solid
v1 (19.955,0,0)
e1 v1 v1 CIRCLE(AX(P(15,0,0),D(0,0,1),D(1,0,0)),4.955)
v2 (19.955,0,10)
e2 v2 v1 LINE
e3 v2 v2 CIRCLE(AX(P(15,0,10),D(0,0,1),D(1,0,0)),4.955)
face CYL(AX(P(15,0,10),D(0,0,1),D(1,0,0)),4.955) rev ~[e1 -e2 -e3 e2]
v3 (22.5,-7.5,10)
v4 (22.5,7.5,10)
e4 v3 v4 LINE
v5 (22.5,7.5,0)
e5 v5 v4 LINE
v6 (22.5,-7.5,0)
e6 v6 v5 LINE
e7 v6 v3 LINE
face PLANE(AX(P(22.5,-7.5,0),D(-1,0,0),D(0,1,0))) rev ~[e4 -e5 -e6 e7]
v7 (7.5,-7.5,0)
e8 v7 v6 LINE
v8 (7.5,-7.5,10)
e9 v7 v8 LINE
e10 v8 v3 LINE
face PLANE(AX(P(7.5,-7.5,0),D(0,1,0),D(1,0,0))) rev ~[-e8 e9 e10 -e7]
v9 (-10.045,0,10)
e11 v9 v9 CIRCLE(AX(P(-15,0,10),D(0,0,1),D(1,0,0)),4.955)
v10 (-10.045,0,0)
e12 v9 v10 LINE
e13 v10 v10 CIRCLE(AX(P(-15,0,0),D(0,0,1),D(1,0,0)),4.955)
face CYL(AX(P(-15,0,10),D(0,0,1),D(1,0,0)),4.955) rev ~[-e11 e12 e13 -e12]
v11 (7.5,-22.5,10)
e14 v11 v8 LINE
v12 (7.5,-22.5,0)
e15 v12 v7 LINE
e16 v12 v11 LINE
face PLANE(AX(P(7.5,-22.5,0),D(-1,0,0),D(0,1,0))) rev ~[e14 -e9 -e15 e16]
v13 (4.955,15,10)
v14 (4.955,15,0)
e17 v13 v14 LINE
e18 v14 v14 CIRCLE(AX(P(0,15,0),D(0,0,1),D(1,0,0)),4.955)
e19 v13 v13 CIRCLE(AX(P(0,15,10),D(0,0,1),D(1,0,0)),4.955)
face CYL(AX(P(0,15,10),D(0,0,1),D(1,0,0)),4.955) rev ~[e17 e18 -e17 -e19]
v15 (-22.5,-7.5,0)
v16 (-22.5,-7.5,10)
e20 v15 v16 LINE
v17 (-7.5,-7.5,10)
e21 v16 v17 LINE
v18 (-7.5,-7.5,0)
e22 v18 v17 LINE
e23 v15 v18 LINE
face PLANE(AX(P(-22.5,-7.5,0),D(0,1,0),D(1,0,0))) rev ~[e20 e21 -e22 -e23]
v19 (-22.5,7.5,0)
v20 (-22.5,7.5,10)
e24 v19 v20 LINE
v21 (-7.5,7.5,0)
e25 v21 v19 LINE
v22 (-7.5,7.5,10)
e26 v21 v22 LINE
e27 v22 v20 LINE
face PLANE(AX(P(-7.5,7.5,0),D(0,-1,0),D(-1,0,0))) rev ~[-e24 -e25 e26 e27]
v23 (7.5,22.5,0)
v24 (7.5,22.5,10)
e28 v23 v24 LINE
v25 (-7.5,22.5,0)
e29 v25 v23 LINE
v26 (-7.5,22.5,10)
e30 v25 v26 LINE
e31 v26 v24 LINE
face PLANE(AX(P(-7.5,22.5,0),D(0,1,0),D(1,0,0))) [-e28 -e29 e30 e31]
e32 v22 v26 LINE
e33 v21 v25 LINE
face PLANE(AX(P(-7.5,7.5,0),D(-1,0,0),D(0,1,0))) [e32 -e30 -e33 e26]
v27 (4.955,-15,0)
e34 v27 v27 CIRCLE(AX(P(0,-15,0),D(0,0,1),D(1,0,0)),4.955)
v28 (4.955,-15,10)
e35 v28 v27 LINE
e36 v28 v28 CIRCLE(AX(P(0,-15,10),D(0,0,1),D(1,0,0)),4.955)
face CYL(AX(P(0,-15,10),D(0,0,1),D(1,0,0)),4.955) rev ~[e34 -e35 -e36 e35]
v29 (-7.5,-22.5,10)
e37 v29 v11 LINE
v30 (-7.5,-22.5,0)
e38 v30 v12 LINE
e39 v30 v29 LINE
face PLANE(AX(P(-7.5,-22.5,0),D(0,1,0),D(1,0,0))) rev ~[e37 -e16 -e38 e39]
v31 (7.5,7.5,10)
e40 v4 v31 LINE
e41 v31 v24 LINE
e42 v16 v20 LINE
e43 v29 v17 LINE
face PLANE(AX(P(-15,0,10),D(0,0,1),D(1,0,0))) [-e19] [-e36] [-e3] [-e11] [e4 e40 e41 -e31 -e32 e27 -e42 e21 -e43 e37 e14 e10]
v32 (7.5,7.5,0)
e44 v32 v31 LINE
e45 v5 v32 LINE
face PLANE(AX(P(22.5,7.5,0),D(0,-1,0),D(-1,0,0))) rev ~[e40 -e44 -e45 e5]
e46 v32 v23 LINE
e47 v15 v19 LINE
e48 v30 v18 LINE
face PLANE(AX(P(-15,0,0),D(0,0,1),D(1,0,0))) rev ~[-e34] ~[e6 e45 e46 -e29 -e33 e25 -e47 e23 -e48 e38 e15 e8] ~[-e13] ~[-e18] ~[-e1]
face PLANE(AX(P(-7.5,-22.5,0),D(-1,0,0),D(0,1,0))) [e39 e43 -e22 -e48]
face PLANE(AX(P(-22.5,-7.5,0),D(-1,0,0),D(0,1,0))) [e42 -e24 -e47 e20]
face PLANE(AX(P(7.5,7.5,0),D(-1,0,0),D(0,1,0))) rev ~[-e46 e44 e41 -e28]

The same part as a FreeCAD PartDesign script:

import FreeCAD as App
import Part
import Sketcher

V = App.Vector

doc = App.newDocument("Part")
params = doc.addObject("Spreadsheet::Sheet", "Params")
for row, (alias, value) in enumerate([
    ("sketch1_width", "15 mm"),
    ("pad1_length", "10 mm"),
    ("sketch2_diameter", "9.91 mm"),
], start=1):
    params.set(f"A{row}", alias)
    params.set(f"B{row}", "=" + value)
    params.setAlias(f"B{row}", alias)

body = doc.addObject("PartDesign::Body", "Body")

sketch1 = body.newObject("Sketcher::SketchObject", "Sketch")
sketch1.AttachmentSupport = (doc.getObject("XY_Plane"), [""])
sketch1.MapMode = "FlatFace"
sketch1.addGeometry([
    Part.LineSegment(V(-22, 8, 0), V(-22, -8, 0)),
    Part.LineSegment(V(-22, -8, 0), V(-8, -8, 0)),
    Part.LineSegment(V(-8, -8, 0), V(-8, -22, 0)),
    Part.LineSegment(V(-8, -22, 0), V(8, -22, 0)),
    Part.LineSegment(V(8, -22, 0), V(8, -8, 0)),
    Part.LineSegment(V(8, -8, 0), V(22, -8, 0)),
    Part.LineSegment(V(22, -8, 0), V(22, 8, 0)),
    Part.LineSegment(V(22, 8, 0), V(8, 8, 0)),
    Part.LineSegment(V(8, 8, 0), V(8, 22, 0)),
    Part.LineSegment(V(8, 22, 0), V(-8, 22, 0)),
    Part.LineSegment(V(-8, 22, 0), V(-8, 8, 0)),
    Part.LineSegment(V(-8, 8, 0), V(-22, 8, 0)),
], False)
sketch1.addConstraint([
    Sketcher.Constraint("Coincident", 0, 2, 1, 1),
    Sketcher.Constraint("Coincident", 1, 2, 2, 1),
    Sketcher.Constraint("Coincident", 2, 2, 3, 1),
    Sketcher.Constraint("Coincident", 3, 2, 4, 1),
    Sketcher.Constraint("Coincident", 4, 2, 5, 1),
    Sketcher.Constraint("Coincident", 5, 2, 6, 1),
    Sketcher.Constraint("Coincident", 6, 2, 7, 1),
    Sketcher.Constraint("Coincident", 7, 2, 8, 1),
    Sketcher.Constraint("Coincident", 8, 2, 9, 1),
    Sketcher.Constraint("Coincident", 9, 2, 10, 1),
    Sketcher.Constraint("Coincident", 10, 2, 11, 1),
    Sketcher.Constraint("Coincident", 11, 2, 0, 1),
    Sketcher.Constraint("Vertical", 0),
    Sketcher.Constraint("Horizontal", 1),
    Sketcher.Constraint("Vertical", 2),
    Sketcher.Constraint("Horizontal", 3),
    Sketcher.Constraint("Vertical", 4),
    Sketcher.Constraint("Horizontal", 5),
    Sketcher.Constraint("Vertical", 6),
    Sketcher.Constraint("Horizontal", 7),
    Sketcher.Constraint("Vertical", 8),
    Sketcher.Constraint("Horizontal", 9),
    Sketcher.Constraint("Vertical", 10),
    Sketcher.Constraint("Horizontal", 11),
    Sketcher.Constraint("Symmetric", 0, 2, 6, 2, -1, 1),
    Sketcher.Constraint("Symmetric", 2, 2, 8, 2, -1, 1),
    Sketcher.Constraint("Symmetric", 4, 2, 10, 2, -1, 1),
    Sketcher.Constraint("Symmetric", 1, 2, 4, 2, -2),
    Sketcher.Constraint("Equal", 1, 3),
    Sketcher.Constraint("Equal", 11, 0),
    Sketcher.Constraint("Equal", 0, 2),
    Sketcher.Constraint("DistanceX", 1, 1, 1, 2, 15.0),
])
sketch1.setExpression("Constraints[31]", "Params.sketch1_width")
pad1 = body.newObject("PartDesign::Pad", "Pad")
pad1.Profile = sketch1
pad1.setExpression("Length", "Params.pad1_length")

sketch2 = body.newObject("Sketcher::SketchObject", "Sketch001")
sketch2.AttachmentSupport = (doc.getObject("XY_Plane"), [""])
sketch2.MapMode = "FlatFace"
sketch2.AttachmentOffset = App.Placement(V(0, 0, 10), App.Rotation())
sketch2.addGeometry([
    Part.Circle(V(-15, 0, 0), V(0, 0, 1), 5),
    Part.Circle(V(15, 0, 0), V(0, 0, 1), 5),
    Part.Circle(V(0, -15, 0), V(0, 0, 1), 5),
    Part.Circle(V(0, 15, 0), V(0, 0, 1), 5),
], False)
sketch2.addConstraint([
    Sketcher.Constraint("Equal", 0, 1),
    Sketcher.Constraint("Equal", 1, 2),
    Sketcher.Constraint("Equal", 2, 3),
    Sketcher.Constraint("Symmetric", 0, 3, 1, 3, -1, 1),
    Sketcher.Constraint("Symmetric", 2, 3, 3, 3, -1, 1),
    Sketcher.Constraint("PointOnObject", 0, 3, -1),
    Sketcher.Constraint("PointOnObject", 2, 3, -2),
    Sketcher.Constraint("Diameter", 0, 9.91),
    Sketcher.Constraint("DistanceX", 0, 3, -1, 1, 15.0),
    Sketcher.Constraint("DistanceY", 2, 3, -1, 1, 15.0),
])
sketch2.setExpression("Constraints[7]", "Params.sketch2_diameter")
pocket1 = body.newObject("PartDesign::Pocket", "Pocket")
pocket1.Profile = sketch2
pocket1.Type = "ThroughAll"

doc.recompute()
